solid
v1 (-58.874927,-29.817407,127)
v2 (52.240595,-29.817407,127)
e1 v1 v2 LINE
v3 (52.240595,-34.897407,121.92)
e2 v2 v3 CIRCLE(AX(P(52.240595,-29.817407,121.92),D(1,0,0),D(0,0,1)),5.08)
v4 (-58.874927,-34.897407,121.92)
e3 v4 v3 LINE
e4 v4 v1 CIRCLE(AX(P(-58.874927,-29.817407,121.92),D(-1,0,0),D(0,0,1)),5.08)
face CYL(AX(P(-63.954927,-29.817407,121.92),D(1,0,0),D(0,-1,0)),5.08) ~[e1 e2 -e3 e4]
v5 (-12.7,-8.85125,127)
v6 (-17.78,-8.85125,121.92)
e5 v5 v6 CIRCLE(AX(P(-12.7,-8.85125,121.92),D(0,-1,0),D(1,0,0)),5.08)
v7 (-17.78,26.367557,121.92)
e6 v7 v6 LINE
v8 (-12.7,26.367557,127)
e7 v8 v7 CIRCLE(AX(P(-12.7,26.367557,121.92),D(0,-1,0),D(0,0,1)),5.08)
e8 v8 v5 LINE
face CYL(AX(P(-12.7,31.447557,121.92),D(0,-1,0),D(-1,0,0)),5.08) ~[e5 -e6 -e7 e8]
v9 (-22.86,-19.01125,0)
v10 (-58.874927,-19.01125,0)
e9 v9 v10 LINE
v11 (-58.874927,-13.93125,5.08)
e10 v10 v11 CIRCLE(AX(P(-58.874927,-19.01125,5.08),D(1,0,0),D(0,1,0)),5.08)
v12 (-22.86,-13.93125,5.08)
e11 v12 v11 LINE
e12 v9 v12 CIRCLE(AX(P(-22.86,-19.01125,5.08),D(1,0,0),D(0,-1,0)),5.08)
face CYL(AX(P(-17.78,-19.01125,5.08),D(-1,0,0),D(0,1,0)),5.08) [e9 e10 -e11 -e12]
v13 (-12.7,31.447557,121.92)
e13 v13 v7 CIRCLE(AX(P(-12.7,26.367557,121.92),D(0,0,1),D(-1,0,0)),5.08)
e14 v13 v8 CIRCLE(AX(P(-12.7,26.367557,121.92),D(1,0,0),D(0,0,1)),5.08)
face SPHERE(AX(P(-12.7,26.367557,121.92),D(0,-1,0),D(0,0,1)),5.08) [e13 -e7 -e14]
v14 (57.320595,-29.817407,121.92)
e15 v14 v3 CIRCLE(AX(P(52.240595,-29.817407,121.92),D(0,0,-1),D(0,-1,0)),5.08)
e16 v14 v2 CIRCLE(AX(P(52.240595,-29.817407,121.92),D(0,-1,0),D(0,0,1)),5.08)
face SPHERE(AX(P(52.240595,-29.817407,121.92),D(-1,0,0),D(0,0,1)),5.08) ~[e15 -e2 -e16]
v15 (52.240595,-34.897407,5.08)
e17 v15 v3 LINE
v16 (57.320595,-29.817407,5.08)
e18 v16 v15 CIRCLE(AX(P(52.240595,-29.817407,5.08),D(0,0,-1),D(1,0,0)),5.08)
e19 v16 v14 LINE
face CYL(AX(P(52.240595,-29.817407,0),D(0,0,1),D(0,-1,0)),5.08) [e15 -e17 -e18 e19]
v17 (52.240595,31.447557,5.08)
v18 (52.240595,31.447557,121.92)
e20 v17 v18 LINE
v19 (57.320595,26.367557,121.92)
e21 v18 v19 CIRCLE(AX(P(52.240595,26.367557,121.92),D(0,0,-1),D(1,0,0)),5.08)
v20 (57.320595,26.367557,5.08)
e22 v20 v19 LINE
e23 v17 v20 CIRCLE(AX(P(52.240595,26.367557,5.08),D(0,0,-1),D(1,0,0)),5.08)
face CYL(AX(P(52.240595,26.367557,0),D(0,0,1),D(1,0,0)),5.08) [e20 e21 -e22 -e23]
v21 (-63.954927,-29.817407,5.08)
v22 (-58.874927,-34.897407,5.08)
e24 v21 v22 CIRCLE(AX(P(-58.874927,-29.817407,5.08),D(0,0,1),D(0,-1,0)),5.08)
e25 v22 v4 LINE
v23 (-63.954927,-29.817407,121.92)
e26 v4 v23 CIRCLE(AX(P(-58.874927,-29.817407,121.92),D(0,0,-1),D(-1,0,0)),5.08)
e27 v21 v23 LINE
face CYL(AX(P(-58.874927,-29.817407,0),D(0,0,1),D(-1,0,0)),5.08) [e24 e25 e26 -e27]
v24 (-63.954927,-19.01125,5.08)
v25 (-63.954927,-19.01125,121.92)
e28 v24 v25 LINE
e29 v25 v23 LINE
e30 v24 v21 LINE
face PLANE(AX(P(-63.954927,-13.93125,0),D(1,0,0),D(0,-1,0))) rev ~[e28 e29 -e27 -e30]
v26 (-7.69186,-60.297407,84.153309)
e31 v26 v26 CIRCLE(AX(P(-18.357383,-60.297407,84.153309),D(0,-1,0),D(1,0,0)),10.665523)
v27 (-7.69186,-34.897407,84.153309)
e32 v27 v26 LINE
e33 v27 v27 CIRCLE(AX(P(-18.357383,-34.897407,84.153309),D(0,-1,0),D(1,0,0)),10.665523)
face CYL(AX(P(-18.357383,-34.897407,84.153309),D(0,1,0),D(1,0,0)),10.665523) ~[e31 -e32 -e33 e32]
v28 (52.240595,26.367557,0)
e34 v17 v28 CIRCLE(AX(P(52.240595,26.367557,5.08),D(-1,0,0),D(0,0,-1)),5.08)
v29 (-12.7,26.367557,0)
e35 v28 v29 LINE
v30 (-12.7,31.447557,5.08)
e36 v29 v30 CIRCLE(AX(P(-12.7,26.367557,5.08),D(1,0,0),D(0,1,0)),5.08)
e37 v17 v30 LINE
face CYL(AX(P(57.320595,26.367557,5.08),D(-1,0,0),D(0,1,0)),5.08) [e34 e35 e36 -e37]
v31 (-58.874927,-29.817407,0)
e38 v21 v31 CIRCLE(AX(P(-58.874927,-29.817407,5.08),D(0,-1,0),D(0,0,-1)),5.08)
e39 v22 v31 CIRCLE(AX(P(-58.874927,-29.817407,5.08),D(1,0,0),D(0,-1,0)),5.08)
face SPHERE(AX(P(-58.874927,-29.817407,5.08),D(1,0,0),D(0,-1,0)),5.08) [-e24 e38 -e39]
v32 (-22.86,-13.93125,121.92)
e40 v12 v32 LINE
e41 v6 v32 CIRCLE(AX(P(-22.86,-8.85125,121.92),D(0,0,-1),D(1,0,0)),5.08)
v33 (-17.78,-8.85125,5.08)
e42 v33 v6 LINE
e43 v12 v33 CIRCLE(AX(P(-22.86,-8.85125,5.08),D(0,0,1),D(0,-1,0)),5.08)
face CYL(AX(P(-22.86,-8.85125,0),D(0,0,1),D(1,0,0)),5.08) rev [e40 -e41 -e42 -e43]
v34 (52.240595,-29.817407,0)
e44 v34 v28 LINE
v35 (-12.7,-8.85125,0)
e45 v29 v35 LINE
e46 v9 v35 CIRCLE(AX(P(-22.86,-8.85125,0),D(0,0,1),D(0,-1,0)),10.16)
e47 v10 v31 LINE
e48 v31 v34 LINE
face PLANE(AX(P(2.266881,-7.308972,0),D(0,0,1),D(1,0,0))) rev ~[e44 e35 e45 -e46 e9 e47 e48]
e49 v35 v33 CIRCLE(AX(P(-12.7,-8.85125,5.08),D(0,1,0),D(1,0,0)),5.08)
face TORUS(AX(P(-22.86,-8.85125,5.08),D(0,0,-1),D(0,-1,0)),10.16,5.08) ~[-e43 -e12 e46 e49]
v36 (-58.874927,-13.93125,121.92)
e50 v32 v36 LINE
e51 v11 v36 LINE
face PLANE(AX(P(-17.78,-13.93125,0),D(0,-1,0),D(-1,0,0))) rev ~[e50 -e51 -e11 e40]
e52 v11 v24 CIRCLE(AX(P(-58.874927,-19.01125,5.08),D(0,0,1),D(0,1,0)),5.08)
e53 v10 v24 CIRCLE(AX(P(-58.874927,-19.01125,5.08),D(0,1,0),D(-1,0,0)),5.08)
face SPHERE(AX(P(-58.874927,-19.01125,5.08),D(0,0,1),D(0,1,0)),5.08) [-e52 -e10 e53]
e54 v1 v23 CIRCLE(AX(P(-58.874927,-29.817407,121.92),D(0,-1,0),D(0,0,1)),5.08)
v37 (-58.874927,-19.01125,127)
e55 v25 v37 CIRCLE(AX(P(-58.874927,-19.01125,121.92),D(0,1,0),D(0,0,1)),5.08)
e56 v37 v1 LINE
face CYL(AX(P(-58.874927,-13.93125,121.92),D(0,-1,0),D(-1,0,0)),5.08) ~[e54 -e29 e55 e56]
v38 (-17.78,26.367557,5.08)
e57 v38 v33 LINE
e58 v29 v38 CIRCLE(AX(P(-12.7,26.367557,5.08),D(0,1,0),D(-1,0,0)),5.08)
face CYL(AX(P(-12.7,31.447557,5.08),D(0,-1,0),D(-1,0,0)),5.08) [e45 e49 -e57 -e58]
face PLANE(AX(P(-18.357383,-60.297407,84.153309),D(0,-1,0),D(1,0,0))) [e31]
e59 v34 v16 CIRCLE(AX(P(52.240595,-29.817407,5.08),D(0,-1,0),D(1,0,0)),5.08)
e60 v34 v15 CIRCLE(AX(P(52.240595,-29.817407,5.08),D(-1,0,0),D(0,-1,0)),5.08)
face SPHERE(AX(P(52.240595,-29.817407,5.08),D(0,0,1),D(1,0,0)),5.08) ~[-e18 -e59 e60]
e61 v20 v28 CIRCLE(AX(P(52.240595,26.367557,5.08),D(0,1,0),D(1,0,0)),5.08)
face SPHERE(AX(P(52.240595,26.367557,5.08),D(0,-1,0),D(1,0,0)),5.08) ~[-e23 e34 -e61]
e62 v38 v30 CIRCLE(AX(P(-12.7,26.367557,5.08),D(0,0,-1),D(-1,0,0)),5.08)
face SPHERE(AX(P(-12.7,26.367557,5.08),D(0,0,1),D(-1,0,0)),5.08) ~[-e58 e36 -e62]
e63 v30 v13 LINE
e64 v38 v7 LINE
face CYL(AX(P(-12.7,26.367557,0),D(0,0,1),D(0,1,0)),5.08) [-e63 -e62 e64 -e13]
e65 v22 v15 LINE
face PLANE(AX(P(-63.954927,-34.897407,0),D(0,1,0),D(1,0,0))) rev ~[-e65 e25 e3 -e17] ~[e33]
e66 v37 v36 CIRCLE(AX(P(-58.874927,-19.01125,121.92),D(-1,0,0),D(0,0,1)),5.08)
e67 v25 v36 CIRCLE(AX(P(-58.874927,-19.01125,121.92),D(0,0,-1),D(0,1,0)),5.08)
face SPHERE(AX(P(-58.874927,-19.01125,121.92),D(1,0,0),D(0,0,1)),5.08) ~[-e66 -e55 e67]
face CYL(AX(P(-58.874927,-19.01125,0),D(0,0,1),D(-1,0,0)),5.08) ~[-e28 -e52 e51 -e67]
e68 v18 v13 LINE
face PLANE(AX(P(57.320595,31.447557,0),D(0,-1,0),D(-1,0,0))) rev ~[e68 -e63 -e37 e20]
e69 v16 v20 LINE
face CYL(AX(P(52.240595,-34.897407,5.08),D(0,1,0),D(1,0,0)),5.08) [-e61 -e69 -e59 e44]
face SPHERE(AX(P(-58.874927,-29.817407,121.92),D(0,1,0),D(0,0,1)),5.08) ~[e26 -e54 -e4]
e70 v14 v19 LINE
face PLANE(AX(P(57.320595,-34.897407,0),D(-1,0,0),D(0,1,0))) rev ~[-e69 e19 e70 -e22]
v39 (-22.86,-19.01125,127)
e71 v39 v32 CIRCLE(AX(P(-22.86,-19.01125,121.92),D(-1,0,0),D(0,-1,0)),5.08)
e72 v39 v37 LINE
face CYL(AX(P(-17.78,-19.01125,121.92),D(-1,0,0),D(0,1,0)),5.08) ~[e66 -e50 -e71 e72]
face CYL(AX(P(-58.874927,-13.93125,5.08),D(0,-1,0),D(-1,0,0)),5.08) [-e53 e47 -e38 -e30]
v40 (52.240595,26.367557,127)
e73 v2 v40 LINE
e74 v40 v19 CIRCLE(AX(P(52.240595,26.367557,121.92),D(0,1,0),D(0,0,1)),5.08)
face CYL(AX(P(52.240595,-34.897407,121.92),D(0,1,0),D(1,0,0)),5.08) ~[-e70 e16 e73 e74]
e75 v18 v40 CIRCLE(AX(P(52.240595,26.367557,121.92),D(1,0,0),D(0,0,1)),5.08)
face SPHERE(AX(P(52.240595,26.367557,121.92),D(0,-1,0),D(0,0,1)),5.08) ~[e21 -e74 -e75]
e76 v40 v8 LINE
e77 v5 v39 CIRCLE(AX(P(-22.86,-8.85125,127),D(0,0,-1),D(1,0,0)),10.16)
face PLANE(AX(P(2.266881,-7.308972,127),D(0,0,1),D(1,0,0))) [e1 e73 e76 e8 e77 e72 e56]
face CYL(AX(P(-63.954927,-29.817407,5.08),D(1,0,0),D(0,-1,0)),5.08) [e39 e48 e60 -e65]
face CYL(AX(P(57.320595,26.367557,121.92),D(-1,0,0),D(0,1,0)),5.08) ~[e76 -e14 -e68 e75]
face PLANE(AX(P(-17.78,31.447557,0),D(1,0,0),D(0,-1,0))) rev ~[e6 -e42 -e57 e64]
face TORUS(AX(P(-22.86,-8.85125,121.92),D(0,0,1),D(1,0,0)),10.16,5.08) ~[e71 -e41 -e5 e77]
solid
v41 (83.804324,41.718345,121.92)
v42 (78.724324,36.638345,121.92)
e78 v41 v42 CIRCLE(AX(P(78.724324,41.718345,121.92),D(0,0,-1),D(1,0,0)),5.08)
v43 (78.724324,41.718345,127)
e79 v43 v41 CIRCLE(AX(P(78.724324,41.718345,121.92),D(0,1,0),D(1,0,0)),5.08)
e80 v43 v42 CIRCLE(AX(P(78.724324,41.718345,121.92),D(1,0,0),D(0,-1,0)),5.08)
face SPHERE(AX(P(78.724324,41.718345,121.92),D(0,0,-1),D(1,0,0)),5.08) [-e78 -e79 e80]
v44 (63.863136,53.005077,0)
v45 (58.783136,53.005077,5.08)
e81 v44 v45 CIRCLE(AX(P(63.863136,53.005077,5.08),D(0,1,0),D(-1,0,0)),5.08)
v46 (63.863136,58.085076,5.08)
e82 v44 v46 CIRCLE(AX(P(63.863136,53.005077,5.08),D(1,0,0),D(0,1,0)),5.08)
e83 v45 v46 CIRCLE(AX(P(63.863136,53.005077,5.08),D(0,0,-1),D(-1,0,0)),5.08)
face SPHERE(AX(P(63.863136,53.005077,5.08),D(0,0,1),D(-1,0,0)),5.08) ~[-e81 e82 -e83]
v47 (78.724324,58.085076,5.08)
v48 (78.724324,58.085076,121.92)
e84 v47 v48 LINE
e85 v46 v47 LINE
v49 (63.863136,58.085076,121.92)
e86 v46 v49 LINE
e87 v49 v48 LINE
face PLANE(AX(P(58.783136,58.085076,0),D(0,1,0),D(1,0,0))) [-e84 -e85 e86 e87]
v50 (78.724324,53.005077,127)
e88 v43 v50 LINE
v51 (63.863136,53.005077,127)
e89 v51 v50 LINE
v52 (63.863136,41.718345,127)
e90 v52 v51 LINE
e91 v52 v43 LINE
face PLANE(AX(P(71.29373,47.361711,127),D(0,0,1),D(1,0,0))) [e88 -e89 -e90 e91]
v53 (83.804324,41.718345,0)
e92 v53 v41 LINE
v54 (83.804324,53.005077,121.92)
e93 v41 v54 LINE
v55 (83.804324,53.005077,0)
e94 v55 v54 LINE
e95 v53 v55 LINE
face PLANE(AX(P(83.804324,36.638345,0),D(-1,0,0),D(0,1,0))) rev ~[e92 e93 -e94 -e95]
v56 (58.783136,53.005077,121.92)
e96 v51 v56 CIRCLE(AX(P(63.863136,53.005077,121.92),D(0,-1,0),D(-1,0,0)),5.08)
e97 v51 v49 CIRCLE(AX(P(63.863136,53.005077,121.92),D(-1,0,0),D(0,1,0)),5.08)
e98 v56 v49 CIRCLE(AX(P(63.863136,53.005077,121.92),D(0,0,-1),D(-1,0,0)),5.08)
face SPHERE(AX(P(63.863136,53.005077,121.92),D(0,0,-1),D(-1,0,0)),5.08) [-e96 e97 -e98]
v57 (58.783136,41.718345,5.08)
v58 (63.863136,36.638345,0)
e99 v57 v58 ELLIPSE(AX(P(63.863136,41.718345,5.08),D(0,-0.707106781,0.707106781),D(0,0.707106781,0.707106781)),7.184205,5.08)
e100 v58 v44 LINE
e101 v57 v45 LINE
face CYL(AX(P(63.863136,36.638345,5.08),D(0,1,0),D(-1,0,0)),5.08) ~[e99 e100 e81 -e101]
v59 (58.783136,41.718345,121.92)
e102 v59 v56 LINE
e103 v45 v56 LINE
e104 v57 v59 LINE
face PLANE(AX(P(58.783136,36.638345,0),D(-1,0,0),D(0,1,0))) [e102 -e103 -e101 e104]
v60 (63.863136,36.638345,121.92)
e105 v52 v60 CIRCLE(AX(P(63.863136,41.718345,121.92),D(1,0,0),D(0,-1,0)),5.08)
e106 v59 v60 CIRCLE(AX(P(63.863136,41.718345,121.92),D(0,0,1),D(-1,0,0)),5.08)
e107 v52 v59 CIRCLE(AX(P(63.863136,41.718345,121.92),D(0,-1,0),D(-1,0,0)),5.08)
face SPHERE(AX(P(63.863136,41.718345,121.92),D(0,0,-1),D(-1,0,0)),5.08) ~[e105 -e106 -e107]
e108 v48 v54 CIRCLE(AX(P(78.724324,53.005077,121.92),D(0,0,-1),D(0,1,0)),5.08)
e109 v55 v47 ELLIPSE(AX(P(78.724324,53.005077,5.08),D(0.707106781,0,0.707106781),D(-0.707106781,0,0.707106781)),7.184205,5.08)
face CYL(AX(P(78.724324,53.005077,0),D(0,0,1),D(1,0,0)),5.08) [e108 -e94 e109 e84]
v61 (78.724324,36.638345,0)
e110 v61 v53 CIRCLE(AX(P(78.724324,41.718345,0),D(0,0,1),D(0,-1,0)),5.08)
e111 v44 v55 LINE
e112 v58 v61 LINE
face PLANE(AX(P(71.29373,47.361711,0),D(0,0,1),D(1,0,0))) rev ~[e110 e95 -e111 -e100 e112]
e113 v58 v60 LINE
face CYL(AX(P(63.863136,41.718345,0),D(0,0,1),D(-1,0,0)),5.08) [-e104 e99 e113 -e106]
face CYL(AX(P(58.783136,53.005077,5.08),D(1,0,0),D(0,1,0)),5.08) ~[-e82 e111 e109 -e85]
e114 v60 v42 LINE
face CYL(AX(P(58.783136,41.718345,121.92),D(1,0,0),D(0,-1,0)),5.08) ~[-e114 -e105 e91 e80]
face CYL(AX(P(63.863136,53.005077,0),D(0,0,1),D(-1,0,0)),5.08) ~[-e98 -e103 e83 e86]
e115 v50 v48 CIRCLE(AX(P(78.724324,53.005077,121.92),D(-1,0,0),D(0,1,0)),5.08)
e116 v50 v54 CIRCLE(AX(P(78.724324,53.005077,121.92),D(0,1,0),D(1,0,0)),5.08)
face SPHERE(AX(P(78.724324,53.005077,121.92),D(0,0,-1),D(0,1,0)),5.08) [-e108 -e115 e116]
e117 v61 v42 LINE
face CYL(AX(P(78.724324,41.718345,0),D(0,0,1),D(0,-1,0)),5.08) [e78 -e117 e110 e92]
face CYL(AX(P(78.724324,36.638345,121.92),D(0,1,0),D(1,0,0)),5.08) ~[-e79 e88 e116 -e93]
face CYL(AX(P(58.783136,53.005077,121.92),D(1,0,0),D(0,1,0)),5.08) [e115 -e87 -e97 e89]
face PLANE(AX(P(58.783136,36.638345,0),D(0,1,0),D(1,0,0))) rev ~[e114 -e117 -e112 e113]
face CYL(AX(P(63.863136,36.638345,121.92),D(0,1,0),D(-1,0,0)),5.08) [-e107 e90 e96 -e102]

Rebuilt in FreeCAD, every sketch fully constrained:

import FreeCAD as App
import Part
import Sketcher
Q = App.Units.Quantity


def edges_at(feature, points):
    """Names of the edges that pass closest to the given points."""
    edges = feature.Shape.Edges
    near = lambda p: min(range(len(edges)), key=lambda i: edges[i].distToShape(Part.Vertex(*p))[0])
    return sorted({f"Edge{near(p) + 1}" for p in points})


def add_polygon(sketch, points):
    """Adds a closed chain of lines whose ends are joined by coincident constraints."""
    first, n = sketch.GeometryCount, len(points)
    for a, b in zip(points, points[1:] + points[:1]):
        sketch.addGeometry(Part.LineSegment(App.Vector(*a, 0), App.Vector(*b, 0)), False)
    for i in range(n):
        sketch.addConstraint(Sketcher.Constraint("Coincident", first + i, 2, first + (i + 1) % n, 1))

doc = App.newDocument("Part")
body = doc.addObject("PartDesign::Body", "Body")
body.AllowCompound = True

# Sketch on XY plane
sketch1 = body.newObject("Sketcher::SketchObject", "Sketch")
sketch1.AttachmentSupport = (doc.getObject("XY_Plane"), [""])
sketch1.MapMode = "FlatFace"
add_polygon(sketch1, [(59, 58), (59, 37), (84, 37), (84, 58)])  # lines 0-3
add_polygon(sketch1, [(-64, -14), (-64, -35), (57, -35), (57, 31), (-18, 31), (-18, -14)])  # lines 4-9
sketch1.addConstraint(Sketcher.Constraint("Vertical", 0))
sketch1.addConstraint(Sketcher.Constraint("Horizontal", 1))
sketch1.addConstraint(Sketcher.Constraint("Vertical", 2))
sketch1.addConstraint(Sketcher.Constraint("Horizontal", 3))
sketch1.addConstraint(Sketcher.Constraint("Vertical", 4))
sketch1.addConstraint(Sketcher.Constraint("Horizontal", 5))
sketch1.addConstraint(Sketcher.Constraint("Vertical", 6))
sketch1.addConstraint(Sketcher.Constraint("Horizontal", 7))
sketch1.addConstraint(Sketcher.Constraint("Vertical", 8))
sketch1.addConstraint(Sketcher.Constraint("Horizontal", 9))
sketch1.addConstraint(Sketcher.Constraint("DistanceX", 7, 2, -1, 1, Q("0.7 in")))
sketch1.addConstraint(Sketcher.Constraint("DistanceX", 5, 1, 5, 2, 121.275522))
sketch1.addConstraint(Sketcher.Constraint("DistanceY", 0, 2, 0, 1, 21.446731))
sketch1.addConstraint(Sketcher.Constraint("DistanceX", 1, 1, 1, 2, 25.021188))
sketch1.addConstraint(Sketcher.Constraint("DistanceX", 7, 2, 7, 1, 75.100595))
sketch1.addConstraint(Sketcher.Constraint("DistanceY", 4, 2, 4, 1, 20.966157))
sketch1.addConstraint(Sketcher.Constraint("DistanceY", 6, 1, 6, 2, 66.344964))
sketch1.addConstraint(Sketcher.Constraint("DistanceY", 8, 2, -1, 1, 13.93125))
sketch1.addConstraint(Sketcher.Constraint("DistanceX", 4, 2, 1, 2, 147.759251))
sketch1.addConstraint(Sketcher.Constraint("DistanceY", 6, 2, 0, 2, 5.190789))
pad1 = body.newObject("PartDesign::Pad", "Pad")
pad1.Profile = sketch1
pad1.Length = Q("5 in")
doc.recompute()

fillet = body.newObject("PartDesign::Fillet", "Fillet")
fillet.Base = (pad1, edges_at(pad1, [
    (-17.78, 8.758, 127),
    (-40.867, -13.931, 127),
    (-63.955, -24.414, 127),
    (-3.317, -34.897, 127),
    (57.321, -1.725, 127),
    (19.77, 31.448, 127),
    (57.321, -34.897, 63.5),
    (57.321, -1.725, 0),
    (-3.317, -34.897, 0),
    (-63.955, -34.897, 63.5),
    (83.804, 36.638, 63.5),
    (83.804, 58.085, 63.5),
    (58.783, 36.638, 63.5),
    (58.783, 58.085, 63.5),
    (57.321, 31.448, 63.5),
    (-17.78, 31.448, 63.5),
    (-17.78, -13.931, 63.5),
    (-63.955, -13.931, 63.5),
    (-40.867, -13.931, 0),
    (-17.78, 8.758, 0),
    (19.77, 31.448, 0),
    (58.783, 47.362, 0),
    (71.294, 58.085, 0),
    (-63.955, -24.414, 0),
    (58.783, 47.362, 127),
    (71.294, 58.085, 127),
    (83.804, 47.362, 127),
    (71.294, 36.638, 127),
]))
fillet.Radius = Q("0.2 in")

# Sketch on XZ plane
sketch2 = body.newObject("Sketcher::SketchObject", "Sketch001")
sketch2.AttachmentSupport = (doc.getObject("XZ_Plane"), [""])
sketch2.MapMode = "FlatFace"
sketch2.AttachmentOffset = App.Placement(App.Vector(0, 0, 34.897407), App.Rotation())
sketch2.addGeometry(Part.Circle(App.Vector(-18, 84, 0), App.Vector(0, 0, 1), 11), False)
sketch2.addConstraint(Sketcher.Constraint("Diameter", 0, 21.331046))
sketch2.addConstraint(Sketcher.Constraint("DistanceY", -1, 1, 0, 3, 84.153309))
sketch2.addConstraint(Sketcher.Constraint("DistanceX", 0, 3, -1, 1, 18.357383))
pad2 = body.newObject("PartDesign::Pad", "Pad001")
pad2.Profile = sketch2
pad2.Length = Q("1 in")

doc.recompute()
